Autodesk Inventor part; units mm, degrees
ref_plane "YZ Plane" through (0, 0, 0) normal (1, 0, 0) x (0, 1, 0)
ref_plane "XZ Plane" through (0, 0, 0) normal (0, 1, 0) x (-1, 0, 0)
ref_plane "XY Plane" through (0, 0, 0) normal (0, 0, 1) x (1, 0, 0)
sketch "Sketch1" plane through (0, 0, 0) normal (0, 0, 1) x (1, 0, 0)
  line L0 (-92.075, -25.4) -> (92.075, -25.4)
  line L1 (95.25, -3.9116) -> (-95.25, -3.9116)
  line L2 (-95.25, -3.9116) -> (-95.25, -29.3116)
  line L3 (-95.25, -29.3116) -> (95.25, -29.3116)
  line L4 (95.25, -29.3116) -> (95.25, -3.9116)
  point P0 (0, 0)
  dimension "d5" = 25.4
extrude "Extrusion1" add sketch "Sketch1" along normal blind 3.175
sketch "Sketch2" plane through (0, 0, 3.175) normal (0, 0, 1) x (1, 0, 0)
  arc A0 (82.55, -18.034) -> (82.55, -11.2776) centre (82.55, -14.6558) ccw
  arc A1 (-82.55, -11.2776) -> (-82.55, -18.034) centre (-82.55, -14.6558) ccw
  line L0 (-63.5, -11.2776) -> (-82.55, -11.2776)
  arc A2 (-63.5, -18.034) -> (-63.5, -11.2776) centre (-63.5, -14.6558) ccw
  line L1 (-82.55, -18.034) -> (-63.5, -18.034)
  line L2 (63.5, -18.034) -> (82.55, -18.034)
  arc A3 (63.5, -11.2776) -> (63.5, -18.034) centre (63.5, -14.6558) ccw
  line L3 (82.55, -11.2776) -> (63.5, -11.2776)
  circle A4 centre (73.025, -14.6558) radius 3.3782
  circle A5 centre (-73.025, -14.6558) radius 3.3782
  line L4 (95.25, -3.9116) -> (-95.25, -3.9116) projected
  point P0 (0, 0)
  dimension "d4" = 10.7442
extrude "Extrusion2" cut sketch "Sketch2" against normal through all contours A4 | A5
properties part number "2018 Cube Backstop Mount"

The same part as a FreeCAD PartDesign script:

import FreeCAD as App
import Part
import Sketcher

V = App.Vector
Q = App.Units.Quantity

doc = App.newDocument("Part")
params = doc.addObject("Spreadsheet::Sheet", "Params")
for row, (alias, value) in enumerate([
    ("sketch1_height", "1 in"),
    ("sketch1_width", "7.5 in"),
    ("pad1_length", "0.125 in"),
    ("sketch2_diameter", "0.266 in"),
], start=1):
    params.set(f"A{row}", alias)
    params.set(f"B{row}", "=" + value)
    params.setAlias(f"B{row}", alias)

body = doc.addObject("PartDesign::Body", "Body")

# Sketch on XY plane
sketch1 = body.newObject("Sketcher::SketchObject", "Sketch")
sketch1.AttachmentSupport = (doc.getObject("XY_Plane"), [""])
sketch1.MapMode = "FlatFace"
sketch1.addGeometry([
    Part.LineSegment(V(95.25, -29.3116, 0), V(95.25, -3.9116, 0)),
    Part.LineSegment(V(95.25, -3.9116, 0), V(-95.25, -3.9116, 0)),
    Part.LineSegment(V(-95.25, -3.9116, 0), V(-95.25, -29.3116, 0)),
    Part.LineSegment(V(-95.25, -29.3116, 0), V(95.25, -29.3116, 0)),
], False)
sketch1.addConstraint([
    Sketcher.Constraint("Coincident", 0, 2, 1, 1),
    Sketcher.Constraint("Coincident", 1, 2, 2, 1),
    Sketcher.Constraint("Coincident", 2, 2, 3, 1),
    Sketcher.Constraint("Coincident", 3, 2, 0, 1),
    Sketcher.Constraint("Vertical", 0),
    Sketcher.Constraint("Horizontal", 1),
    Sketcher.Constraint("Vertical", 2),
    Sketcher.Constraint("Horizontal", 3),
    Sketcher.Constraint("DistanceY", 0, 1, 0, 2, Q("1 in")),
    Sketcher.Constraint("DistanceX", 1, 2, 1, 1, Q("7.5 in")),
    Sketcher.Constraint("DistanceX", -1, 1, 0, 2, Q("3.75 in")),
    Sketcher.Constraint("DistanceY", 0, 2, -1, 1, Q("0.154 in")),
])
sketch1.setExpression("Constraints[8]", "Params.sketch1_height")
sketch1.setExpression("Constraints[9]", "Params.sketch1_width")
pad1 = body.newObject("PartDesign::Pad", "Pad")
pad1.Profile = sketch1
pad1.setExpression("Length", "Params.pad1_length")

# Sketch on XY plane
sketch2 = body.newObject("Sketcher::SketchObject", "Sketch001")
sketch2.AttachmentSupport = (doc.getObject("XY_Plane"), [""])
sketch2.MapMode = "FlatFace"
sketch2.AttachmentOffset = App.Placement(V(0, 0, 0.125 * 25.4), App.Rotation())
sketch2.addGeometry([
    Part.Circle(V(73.025, -14.6558, 0), V(0, 0, 1), 3.3782),
    Part.Circle(V(-73.025, -14.6558, 0), V(0, 0, 1), 3.3782),
], False)
sketch2.addConstraint([
    Sketcher.Constraint("Equal", 0, 1),
    Sketcher.Constraint("Symmetric", 0, 3, 1, 3, -2),
    Sketcher.Constraint("Diameter", 0, Q("0.266 in")),
    Sketcher.Constraint("DistanceX", 1, 3, 0, 3, Q("5.75 in")),
    Sketcher.Constraint("DistanceY", 0, 3, -1, 1, Q("0.577 in")),
])
sketch2.setExpression("Constraints[2]", "Params.sketch2_diameter")
pocket1 = body.newObject("PartDesign::Pocket", "Pocket")
pocket1.Profile = sketch2
pocket1.Type = "ThroughAll"

doc.recompute()
